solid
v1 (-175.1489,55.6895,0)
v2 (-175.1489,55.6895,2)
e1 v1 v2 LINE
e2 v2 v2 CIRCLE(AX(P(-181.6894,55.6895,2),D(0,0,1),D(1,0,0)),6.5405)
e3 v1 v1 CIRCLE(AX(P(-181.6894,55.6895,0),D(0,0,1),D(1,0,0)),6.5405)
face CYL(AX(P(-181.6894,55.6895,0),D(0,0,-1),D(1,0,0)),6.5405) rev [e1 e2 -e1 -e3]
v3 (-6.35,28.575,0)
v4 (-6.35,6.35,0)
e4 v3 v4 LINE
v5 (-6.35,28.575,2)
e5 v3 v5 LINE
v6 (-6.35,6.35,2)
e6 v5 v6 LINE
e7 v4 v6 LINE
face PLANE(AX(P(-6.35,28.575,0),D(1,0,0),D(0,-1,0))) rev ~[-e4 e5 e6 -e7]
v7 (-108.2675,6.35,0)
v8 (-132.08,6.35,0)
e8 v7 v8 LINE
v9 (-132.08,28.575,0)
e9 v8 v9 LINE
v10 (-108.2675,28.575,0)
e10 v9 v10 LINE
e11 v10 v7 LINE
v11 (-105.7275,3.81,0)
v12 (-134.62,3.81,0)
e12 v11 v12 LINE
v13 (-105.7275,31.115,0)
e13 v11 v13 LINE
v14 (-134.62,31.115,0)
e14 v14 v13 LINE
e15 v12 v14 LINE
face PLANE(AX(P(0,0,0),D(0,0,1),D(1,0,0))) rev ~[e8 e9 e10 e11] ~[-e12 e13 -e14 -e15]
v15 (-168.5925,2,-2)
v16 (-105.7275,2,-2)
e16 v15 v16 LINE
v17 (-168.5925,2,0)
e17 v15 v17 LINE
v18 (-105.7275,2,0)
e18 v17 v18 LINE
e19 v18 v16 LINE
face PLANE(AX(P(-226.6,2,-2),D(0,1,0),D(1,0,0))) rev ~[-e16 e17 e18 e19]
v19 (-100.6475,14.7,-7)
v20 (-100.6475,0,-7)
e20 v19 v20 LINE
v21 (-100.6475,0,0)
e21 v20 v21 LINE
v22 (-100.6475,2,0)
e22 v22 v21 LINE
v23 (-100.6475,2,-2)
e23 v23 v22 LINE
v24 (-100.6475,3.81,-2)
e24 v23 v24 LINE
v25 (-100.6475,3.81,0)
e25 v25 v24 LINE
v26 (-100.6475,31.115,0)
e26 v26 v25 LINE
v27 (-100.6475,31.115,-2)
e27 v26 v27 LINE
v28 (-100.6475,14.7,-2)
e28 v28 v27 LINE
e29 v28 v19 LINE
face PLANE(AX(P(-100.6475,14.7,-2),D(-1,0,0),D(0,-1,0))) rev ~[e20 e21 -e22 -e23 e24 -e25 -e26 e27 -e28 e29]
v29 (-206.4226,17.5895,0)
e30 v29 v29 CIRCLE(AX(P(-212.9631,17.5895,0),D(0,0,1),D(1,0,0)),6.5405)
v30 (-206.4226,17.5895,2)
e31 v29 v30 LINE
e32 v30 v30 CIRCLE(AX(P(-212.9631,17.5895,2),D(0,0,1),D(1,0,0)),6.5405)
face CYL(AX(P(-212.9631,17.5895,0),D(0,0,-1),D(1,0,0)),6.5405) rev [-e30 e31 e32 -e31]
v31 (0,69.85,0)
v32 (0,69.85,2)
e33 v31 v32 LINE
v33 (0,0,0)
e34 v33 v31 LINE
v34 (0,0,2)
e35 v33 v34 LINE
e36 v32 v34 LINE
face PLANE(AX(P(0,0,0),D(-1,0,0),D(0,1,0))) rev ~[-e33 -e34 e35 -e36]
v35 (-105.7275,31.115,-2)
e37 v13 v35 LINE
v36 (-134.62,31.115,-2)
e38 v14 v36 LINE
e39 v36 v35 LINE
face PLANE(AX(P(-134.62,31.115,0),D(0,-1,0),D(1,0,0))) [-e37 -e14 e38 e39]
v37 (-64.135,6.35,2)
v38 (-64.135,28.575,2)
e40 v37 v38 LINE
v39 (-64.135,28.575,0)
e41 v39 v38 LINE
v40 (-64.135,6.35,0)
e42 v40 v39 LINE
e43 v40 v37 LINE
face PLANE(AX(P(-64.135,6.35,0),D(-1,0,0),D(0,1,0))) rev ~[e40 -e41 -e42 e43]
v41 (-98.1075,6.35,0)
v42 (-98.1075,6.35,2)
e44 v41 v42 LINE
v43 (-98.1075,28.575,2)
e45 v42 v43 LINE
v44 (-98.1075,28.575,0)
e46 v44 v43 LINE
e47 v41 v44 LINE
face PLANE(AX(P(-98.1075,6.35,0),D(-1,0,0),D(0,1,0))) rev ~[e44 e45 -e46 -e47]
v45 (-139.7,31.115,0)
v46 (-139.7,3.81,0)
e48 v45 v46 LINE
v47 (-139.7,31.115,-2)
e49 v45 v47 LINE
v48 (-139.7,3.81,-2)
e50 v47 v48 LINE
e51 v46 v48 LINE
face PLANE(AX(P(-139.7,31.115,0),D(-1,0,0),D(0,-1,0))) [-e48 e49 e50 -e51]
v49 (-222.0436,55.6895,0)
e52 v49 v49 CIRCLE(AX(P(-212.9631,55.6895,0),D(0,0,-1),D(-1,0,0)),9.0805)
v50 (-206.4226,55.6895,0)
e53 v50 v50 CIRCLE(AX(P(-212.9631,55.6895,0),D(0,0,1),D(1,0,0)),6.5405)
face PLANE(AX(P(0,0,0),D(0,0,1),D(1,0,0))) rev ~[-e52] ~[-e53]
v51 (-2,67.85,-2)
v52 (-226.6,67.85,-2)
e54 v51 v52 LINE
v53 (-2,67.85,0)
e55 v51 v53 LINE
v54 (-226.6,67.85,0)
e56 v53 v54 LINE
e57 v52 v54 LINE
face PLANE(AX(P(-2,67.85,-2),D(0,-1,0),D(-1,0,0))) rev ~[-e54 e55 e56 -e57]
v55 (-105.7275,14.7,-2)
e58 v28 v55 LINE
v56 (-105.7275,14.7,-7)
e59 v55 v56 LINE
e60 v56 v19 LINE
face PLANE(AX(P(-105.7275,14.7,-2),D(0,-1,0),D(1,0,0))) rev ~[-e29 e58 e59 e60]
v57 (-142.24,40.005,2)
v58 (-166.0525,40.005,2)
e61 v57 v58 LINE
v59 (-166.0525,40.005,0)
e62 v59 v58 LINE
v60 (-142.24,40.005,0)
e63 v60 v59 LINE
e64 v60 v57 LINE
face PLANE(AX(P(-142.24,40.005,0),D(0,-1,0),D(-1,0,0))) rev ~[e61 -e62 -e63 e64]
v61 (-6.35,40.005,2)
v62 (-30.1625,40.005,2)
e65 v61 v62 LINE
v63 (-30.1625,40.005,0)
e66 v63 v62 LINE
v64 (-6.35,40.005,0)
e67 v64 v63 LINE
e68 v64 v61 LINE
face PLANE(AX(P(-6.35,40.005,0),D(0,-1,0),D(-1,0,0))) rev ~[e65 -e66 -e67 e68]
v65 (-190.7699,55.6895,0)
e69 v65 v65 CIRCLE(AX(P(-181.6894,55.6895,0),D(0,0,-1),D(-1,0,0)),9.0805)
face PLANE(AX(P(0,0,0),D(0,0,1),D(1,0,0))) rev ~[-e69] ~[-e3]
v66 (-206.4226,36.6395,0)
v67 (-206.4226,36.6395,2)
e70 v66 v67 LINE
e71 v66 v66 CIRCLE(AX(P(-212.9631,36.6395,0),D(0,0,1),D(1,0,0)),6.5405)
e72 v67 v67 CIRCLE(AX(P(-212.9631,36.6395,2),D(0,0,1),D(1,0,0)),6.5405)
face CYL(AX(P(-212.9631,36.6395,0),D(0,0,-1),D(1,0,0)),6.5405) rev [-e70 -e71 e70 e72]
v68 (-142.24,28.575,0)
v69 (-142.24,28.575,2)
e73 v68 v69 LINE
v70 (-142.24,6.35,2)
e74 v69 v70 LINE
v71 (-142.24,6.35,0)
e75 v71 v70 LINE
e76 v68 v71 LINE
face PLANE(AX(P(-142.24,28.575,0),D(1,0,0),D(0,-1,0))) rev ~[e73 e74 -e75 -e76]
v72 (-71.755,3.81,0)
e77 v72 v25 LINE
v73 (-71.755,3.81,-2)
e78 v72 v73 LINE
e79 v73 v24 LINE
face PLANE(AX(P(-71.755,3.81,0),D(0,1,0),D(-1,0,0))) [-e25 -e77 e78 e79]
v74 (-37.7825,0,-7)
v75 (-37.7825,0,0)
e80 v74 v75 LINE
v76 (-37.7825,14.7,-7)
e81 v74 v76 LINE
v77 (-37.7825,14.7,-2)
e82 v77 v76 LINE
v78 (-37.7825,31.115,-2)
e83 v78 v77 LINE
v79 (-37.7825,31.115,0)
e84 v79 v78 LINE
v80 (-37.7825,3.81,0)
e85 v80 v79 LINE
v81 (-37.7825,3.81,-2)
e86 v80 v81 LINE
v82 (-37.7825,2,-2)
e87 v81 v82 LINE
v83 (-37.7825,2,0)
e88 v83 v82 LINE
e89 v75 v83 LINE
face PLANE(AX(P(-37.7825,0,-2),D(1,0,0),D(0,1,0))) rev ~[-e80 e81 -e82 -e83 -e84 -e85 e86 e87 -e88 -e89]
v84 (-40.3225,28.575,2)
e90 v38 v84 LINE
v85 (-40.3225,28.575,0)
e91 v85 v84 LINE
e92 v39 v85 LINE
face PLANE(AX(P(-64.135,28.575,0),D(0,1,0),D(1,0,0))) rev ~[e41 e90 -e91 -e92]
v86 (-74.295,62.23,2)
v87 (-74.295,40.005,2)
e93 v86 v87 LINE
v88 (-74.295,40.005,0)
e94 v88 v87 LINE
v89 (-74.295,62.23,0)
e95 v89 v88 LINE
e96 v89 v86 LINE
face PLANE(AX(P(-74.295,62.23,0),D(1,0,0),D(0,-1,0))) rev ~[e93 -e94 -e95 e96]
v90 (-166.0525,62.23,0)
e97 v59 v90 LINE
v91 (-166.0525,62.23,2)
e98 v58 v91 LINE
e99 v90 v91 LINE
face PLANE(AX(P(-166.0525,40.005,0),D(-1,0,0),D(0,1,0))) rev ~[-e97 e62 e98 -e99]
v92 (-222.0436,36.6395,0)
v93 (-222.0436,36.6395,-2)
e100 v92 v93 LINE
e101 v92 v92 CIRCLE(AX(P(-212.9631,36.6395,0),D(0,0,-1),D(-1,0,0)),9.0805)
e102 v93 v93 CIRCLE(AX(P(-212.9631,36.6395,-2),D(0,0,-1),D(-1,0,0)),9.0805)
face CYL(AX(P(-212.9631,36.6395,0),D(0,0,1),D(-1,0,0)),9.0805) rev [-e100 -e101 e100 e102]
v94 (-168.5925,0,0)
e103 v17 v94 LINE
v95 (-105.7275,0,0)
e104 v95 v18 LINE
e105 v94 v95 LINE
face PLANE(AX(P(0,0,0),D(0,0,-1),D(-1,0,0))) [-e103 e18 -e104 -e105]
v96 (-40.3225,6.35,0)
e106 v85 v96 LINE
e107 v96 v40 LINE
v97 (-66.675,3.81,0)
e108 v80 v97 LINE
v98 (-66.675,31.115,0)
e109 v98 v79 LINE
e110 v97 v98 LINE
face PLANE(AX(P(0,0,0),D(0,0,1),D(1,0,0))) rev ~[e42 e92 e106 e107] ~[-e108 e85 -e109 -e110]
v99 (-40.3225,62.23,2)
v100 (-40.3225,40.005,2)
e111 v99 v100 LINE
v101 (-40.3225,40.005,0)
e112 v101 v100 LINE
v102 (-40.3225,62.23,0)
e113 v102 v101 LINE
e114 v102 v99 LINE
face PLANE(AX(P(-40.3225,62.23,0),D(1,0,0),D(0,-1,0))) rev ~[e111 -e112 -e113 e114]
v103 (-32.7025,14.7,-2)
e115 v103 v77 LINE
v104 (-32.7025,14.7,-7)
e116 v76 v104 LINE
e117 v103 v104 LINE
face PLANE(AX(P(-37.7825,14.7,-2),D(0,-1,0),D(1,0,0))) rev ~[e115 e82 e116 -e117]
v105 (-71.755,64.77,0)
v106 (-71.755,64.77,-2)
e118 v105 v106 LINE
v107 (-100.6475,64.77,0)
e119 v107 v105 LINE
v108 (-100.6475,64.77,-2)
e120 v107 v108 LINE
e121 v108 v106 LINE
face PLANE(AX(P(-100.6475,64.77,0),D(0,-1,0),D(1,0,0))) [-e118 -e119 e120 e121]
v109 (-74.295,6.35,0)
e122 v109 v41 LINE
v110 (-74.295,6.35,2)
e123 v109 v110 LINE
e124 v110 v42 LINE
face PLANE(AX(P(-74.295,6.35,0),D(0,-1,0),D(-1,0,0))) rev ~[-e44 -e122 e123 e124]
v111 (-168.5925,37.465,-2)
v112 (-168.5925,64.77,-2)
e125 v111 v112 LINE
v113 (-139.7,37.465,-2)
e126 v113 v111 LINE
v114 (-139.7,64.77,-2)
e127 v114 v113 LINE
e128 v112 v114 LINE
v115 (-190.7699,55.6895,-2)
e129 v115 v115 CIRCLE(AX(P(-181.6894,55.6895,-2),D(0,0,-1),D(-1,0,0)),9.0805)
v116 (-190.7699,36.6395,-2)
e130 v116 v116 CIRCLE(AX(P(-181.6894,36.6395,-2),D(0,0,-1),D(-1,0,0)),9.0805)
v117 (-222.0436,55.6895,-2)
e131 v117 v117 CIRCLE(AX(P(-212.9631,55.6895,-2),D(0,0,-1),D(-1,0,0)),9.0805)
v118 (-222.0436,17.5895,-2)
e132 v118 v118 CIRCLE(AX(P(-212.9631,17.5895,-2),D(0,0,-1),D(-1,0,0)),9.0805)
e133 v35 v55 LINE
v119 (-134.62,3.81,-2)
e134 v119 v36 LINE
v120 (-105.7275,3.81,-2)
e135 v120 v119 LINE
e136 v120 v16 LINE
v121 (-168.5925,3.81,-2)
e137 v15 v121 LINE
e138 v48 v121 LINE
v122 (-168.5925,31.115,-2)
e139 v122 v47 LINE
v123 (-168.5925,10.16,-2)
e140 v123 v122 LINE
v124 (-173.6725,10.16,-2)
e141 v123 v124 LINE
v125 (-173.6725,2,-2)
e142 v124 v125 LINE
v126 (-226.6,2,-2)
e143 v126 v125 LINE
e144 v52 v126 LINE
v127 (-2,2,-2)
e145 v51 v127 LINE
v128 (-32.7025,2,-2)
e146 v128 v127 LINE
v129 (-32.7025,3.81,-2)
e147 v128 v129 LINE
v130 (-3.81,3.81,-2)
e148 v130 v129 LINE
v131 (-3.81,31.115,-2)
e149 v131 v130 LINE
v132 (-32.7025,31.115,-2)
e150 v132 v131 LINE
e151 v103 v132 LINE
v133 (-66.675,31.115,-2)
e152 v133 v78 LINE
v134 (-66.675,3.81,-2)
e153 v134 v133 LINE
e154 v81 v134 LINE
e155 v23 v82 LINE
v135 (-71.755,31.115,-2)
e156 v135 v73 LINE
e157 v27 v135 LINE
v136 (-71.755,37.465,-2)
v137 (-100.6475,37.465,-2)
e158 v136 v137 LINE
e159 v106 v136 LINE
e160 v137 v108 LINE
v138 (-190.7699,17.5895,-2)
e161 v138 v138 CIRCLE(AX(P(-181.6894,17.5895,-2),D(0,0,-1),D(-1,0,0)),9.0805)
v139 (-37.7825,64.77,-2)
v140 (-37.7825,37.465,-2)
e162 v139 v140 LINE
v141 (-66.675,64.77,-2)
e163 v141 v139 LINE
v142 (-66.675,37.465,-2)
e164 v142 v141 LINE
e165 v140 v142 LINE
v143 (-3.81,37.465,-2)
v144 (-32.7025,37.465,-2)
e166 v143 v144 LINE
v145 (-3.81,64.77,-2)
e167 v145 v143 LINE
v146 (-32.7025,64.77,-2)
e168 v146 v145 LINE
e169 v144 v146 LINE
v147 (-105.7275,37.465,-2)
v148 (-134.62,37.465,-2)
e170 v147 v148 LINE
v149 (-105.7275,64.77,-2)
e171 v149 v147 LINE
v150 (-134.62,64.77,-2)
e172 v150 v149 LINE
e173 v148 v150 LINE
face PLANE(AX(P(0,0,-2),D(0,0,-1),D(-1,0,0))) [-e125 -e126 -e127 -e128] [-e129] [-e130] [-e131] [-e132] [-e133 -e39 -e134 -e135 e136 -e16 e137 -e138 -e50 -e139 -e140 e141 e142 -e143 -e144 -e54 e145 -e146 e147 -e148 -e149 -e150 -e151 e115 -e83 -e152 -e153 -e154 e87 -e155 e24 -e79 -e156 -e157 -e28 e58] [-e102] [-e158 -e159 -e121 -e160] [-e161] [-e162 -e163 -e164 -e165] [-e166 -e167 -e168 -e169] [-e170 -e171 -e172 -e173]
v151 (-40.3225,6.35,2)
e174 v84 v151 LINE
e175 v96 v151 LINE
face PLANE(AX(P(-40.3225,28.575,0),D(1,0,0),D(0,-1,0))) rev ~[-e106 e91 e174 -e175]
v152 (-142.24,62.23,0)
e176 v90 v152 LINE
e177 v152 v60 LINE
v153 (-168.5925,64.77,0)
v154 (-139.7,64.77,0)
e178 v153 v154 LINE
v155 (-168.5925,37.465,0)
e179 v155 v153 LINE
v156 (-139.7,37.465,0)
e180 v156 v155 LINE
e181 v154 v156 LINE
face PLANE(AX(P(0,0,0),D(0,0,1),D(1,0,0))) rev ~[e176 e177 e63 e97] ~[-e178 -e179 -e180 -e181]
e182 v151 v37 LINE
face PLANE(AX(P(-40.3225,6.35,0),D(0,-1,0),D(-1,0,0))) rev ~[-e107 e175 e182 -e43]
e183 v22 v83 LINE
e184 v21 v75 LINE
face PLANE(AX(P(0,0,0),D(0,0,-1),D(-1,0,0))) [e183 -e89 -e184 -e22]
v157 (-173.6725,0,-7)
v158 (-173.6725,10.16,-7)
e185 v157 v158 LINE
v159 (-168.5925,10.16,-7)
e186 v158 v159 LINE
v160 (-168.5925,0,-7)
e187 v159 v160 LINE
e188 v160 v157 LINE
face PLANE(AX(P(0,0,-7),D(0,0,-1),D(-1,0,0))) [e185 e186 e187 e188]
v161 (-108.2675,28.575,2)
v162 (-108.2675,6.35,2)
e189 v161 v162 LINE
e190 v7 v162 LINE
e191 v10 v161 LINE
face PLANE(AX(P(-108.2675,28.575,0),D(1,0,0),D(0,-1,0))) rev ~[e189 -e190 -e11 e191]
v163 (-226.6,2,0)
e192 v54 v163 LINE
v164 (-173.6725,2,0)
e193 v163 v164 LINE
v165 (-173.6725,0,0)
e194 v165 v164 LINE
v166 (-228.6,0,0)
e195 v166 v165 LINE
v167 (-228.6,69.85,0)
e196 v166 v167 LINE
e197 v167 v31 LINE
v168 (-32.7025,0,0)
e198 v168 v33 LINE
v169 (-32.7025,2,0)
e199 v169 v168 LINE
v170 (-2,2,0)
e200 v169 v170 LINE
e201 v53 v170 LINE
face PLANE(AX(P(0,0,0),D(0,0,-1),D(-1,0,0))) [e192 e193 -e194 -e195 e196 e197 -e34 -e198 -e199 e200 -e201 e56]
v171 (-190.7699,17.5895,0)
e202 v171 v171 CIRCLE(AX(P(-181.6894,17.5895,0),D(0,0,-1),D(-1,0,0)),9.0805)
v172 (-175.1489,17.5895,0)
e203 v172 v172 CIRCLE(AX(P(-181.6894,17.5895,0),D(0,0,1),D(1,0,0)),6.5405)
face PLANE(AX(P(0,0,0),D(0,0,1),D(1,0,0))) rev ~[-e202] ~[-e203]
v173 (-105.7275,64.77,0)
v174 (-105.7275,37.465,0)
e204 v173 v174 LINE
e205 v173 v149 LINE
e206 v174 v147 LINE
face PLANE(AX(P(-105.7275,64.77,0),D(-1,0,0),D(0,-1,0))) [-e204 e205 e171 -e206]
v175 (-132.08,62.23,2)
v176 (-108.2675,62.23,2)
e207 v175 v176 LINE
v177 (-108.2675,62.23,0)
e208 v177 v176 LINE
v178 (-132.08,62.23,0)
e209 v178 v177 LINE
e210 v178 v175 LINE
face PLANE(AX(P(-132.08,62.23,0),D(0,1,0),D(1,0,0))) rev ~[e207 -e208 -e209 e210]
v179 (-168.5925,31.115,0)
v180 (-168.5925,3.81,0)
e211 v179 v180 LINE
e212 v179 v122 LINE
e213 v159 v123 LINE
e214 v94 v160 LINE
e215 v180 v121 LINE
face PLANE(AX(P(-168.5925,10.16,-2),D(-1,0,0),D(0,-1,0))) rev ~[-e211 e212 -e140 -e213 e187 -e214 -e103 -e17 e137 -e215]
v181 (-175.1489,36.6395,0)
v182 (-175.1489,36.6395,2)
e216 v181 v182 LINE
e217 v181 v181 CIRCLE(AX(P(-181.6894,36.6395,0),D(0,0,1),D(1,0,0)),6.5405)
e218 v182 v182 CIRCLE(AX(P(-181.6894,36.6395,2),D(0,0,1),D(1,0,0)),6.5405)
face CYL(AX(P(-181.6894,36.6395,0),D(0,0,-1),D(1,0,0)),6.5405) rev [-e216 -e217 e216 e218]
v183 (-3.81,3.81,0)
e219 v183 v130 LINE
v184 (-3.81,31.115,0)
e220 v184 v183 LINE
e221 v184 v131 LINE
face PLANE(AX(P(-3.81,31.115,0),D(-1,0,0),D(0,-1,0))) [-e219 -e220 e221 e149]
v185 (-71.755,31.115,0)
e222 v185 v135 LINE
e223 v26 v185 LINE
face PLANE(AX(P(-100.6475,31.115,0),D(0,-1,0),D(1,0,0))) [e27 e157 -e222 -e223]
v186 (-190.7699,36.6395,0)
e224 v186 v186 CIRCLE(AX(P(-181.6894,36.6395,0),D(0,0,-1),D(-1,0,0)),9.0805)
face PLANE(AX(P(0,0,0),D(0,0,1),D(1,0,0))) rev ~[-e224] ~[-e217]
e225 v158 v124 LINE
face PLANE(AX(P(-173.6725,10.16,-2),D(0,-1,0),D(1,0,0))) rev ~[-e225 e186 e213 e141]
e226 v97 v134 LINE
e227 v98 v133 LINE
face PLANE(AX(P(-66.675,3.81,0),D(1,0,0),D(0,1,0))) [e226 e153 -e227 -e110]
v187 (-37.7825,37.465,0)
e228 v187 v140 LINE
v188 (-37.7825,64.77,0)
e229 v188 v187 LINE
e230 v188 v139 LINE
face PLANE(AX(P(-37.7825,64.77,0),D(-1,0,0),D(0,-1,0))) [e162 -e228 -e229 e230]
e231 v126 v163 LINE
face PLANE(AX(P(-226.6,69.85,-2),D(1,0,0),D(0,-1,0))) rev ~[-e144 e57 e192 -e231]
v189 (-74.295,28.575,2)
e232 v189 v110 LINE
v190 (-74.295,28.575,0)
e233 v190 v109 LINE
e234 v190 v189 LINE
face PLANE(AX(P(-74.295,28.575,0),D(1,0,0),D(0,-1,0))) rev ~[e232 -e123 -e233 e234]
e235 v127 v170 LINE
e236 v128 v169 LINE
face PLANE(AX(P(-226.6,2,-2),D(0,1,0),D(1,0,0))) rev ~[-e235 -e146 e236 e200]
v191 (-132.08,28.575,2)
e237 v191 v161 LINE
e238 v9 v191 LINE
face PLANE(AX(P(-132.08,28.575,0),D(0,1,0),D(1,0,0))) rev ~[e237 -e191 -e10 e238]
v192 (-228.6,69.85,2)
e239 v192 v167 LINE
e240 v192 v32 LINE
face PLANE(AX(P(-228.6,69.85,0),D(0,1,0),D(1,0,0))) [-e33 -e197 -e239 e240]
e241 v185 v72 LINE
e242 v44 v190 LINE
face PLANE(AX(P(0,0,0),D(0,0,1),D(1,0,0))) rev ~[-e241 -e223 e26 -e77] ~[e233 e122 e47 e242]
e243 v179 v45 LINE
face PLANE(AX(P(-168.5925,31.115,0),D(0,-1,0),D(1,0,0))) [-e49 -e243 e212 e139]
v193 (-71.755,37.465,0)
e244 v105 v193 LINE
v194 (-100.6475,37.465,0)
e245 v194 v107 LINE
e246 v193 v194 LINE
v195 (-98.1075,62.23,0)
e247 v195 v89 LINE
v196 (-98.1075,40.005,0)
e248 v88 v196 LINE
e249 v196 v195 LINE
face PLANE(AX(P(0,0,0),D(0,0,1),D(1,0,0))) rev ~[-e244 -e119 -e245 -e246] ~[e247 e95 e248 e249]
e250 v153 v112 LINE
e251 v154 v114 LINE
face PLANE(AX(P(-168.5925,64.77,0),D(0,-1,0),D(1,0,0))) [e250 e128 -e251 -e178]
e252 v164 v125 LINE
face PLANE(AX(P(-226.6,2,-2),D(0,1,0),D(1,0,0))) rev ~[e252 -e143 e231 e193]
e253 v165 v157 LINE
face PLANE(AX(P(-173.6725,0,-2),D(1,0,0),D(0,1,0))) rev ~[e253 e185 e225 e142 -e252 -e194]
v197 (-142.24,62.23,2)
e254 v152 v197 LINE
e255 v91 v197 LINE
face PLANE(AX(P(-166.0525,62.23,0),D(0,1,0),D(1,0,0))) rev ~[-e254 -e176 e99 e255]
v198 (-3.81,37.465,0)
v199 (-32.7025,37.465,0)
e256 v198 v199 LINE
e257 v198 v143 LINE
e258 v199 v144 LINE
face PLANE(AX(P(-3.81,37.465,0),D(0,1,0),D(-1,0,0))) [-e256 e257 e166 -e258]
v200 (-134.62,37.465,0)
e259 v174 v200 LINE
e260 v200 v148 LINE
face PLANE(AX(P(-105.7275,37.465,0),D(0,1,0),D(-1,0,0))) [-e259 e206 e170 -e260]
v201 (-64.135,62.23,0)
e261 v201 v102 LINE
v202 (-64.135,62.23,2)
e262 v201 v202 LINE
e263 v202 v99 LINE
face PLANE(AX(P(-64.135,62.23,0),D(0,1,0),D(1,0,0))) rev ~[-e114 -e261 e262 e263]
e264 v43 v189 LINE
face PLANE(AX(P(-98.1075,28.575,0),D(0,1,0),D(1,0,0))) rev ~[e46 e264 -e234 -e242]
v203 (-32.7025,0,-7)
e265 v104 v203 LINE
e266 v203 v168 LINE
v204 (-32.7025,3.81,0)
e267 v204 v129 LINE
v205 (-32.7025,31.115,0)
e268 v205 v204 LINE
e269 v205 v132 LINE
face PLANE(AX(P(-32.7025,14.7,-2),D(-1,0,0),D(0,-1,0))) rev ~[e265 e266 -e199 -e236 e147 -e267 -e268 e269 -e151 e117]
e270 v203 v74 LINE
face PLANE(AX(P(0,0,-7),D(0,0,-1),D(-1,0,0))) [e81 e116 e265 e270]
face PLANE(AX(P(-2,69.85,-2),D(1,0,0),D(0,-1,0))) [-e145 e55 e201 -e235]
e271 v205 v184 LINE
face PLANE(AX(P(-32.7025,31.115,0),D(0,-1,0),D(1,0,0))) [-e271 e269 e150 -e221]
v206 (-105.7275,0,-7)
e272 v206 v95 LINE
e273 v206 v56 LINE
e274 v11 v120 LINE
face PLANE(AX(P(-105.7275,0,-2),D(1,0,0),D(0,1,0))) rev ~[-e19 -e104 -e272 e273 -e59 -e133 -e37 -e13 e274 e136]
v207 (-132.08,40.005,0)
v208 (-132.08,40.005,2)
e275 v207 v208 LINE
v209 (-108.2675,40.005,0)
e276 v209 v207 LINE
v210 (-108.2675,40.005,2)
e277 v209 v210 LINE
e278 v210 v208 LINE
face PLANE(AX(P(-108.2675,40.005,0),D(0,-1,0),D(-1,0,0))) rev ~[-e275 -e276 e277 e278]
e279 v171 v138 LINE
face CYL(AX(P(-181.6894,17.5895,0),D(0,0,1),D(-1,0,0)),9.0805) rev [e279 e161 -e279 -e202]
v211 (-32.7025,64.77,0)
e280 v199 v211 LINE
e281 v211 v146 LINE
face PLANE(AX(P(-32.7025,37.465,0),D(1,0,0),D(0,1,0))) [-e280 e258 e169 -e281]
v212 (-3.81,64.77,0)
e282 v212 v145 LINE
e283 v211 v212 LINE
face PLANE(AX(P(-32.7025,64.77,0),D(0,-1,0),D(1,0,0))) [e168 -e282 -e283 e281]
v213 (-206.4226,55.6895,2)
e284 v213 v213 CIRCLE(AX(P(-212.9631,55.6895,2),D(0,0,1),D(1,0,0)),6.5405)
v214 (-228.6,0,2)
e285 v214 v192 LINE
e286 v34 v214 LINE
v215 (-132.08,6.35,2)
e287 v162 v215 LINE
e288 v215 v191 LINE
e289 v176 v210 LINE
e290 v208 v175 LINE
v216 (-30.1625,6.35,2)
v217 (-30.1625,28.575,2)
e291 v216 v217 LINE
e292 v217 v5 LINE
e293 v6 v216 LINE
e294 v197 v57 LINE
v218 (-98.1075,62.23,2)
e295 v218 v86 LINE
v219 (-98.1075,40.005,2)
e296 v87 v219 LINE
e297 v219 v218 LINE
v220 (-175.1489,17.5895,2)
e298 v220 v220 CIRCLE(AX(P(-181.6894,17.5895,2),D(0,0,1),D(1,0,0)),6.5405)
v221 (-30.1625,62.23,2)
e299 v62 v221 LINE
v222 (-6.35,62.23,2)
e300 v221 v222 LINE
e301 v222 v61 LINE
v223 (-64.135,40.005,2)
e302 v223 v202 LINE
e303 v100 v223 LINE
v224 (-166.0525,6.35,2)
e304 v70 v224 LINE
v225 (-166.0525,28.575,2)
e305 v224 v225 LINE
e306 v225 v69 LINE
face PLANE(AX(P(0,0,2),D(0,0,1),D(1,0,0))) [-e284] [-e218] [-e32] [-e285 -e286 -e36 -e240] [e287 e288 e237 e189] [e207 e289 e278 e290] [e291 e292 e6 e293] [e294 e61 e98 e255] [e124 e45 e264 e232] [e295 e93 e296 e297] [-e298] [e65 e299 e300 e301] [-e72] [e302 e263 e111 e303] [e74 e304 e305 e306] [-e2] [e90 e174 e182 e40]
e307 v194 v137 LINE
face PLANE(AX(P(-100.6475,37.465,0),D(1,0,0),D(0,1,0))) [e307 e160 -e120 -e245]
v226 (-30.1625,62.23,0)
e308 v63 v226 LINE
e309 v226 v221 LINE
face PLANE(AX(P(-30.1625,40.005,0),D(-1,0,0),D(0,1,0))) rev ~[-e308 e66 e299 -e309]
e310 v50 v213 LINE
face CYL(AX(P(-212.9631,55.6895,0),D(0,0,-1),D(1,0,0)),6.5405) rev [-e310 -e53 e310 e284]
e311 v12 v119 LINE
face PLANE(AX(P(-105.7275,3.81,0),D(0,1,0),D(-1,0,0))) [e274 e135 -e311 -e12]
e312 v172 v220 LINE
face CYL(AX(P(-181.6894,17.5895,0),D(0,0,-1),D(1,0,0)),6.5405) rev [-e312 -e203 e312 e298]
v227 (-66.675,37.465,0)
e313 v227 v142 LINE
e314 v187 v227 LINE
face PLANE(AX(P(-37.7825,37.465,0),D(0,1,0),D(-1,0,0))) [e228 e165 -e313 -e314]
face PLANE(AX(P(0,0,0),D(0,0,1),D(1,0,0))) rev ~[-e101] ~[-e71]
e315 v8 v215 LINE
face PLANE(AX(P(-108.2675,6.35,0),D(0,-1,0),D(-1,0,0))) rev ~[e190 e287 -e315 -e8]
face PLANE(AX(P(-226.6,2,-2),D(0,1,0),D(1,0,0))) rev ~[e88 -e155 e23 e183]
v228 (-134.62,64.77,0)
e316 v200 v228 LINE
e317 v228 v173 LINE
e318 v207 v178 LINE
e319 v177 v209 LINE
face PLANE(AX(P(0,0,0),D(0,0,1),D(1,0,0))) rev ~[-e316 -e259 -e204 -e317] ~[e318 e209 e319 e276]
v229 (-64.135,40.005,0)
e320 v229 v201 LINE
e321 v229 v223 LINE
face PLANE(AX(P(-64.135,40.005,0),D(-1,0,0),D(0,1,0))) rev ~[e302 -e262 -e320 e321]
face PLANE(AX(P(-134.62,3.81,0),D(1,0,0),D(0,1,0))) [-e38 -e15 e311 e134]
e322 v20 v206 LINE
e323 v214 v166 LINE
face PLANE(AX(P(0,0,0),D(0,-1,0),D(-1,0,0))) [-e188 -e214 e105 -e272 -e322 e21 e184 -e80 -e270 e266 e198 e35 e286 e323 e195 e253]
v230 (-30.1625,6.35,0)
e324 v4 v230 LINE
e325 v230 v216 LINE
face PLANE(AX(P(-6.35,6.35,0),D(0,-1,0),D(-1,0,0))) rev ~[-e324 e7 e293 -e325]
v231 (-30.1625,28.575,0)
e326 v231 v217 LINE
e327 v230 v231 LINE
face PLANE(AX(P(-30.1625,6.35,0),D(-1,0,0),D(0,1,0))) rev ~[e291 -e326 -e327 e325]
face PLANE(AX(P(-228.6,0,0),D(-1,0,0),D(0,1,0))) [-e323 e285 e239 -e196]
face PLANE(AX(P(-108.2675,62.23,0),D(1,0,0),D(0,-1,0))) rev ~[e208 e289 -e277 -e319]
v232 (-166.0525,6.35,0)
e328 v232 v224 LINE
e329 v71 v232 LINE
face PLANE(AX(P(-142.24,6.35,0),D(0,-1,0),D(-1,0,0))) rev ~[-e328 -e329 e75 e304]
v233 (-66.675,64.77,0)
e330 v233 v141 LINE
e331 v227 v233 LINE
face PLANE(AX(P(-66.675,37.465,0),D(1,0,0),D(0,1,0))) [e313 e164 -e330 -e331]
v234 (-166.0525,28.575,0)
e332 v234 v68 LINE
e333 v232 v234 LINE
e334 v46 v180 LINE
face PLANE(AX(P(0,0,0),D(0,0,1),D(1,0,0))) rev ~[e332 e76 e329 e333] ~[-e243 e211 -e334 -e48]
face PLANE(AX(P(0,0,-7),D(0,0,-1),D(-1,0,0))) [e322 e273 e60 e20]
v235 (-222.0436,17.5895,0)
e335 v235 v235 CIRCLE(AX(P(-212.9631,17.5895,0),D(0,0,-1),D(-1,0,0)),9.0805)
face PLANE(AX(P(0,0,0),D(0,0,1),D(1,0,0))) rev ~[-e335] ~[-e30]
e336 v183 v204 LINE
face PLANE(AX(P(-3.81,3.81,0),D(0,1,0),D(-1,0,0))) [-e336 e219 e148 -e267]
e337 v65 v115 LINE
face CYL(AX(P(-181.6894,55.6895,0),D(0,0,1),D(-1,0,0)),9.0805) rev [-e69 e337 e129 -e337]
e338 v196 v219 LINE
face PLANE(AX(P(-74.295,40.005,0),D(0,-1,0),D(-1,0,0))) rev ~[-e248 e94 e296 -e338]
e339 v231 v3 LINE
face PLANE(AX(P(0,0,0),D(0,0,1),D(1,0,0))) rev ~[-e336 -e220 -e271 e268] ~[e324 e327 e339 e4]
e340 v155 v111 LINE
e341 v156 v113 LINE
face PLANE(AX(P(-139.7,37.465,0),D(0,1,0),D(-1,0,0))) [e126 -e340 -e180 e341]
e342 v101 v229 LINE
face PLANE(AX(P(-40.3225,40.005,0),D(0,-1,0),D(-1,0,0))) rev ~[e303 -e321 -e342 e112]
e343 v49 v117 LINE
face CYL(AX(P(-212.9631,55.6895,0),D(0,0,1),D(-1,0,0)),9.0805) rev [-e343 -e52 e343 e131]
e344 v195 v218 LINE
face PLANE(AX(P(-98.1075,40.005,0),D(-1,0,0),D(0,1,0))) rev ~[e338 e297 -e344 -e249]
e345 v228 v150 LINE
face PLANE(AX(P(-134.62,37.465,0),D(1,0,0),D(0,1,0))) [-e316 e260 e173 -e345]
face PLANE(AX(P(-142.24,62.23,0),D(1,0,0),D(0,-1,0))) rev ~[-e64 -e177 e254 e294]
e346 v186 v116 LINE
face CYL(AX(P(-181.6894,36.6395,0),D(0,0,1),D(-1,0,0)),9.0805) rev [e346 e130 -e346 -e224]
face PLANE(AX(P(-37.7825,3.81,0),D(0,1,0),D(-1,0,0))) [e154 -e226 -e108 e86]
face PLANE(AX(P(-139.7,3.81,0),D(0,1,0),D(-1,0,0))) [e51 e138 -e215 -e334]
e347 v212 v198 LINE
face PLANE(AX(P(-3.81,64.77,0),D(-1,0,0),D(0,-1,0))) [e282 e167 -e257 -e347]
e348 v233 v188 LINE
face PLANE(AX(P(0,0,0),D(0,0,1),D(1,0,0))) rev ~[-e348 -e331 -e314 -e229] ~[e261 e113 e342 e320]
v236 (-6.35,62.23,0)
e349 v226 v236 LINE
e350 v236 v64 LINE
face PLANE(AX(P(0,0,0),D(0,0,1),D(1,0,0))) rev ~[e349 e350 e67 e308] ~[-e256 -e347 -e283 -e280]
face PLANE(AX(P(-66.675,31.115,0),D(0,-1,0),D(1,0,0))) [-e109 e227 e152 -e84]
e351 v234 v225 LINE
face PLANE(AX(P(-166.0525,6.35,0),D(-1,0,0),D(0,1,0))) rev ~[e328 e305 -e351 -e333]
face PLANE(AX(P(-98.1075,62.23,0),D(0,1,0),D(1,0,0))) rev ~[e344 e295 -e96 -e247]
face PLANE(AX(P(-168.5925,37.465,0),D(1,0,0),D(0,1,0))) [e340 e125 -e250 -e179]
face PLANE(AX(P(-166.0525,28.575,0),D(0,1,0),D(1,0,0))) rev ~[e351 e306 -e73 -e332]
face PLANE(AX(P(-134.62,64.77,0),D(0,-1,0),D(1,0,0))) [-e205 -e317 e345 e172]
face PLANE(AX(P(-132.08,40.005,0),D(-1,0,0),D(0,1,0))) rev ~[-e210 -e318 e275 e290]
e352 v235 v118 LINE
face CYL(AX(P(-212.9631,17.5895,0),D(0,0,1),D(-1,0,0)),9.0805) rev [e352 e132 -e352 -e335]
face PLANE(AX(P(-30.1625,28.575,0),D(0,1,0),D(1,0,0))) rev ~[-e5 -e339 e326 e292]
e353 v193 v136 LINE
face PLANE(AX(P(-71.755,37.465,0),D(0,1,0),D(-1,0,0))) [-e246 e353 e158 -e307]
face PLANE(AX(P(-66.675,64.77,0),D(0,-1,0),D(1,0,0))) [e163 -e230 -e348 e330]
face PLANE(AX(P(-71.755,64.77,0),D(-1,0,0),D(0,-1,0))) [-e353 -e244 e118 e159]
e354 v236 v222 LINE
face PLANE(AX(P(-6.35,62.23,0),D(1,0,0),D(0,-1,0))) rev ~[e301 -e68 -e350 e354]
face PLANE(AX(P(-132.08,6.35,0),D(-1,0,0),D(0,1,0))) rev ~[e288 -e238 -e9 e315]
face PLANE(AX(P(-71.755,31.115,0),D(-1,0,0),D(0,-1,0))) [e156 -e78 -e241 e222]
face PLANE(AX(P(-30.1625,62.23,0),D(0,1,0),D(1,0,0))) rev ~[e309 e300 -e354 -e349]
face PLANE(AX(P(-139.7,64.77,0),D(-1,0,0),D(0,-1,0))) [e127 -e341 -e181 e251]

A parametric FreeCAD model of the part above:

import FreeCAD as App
import Part
import Sketcher
Q = App.Units.Quantity


def add_polygon(sketch, points):
    """Adds a closed chain of lines whose ends are joined by coincident constraints."""
    first, n = sketch.GeometryCount, len(points)
    for a, b in zip(points, points[1:] + points[:1]):
        sketch.addGeometry(Part.LineSegment(App.Vector(*a, 0), App.Vector(*b, 0)), False)
    for i in range(n):
        sketch.addConstraint(Sketcher.Constraint("Coincident", first + i, 2, first + (i + 1) % n, 1))

doc = App.newDocument("Part")
body = doc.addObject("PartDesign::Body", "Body")

sketch1 = doc.addObject("Sketcher::SketchObject", "Sketch")
body.addObject(sketch1)
sketch1.AttachmentSupport = (doc.XY_Plane, [""])
sketch1.MapMode = "FlatFace"
add_polygon(sketch1, [(-229, 0), (0, 0), (0, 70), (-229, 70)])
sketch1.addGeometry(Part.Circle(App.Vector(-213, 18, 0), App.Vector(0, 0, 1), 7), False)
sketch1.addGeometry(Part.Circle(App.Vector(-182, 18, 0), App.Vector(0, 0, 1), 7), False)
add_polygon(sketch1, [(-142, 29), (-142, 6), (-166, 6), (-166, 29)])
add_polygon(sketch1, [(-108, 29), (-108, 6), (-132, 6), (-132, 29)])
add_polygon(sketch1, [(-74, 29), (-74, 6), (-98, 6), (-98, 29)])
add_polygon(sketch1, [(-40, 29), (-40, 6), (-64, 6), (-64, 29)])
add_polygon(sketch1, [(-6, 29), (-6, 6), (-30, 6), (-30, 29)])
sketch1.addGeometry(Part.Circle(App.Vector(-213, 37, 0), App.Vector(0, 0, 1), 7), False)
sketch1.addGeometry(Part.Circle(App.Vector(-182, 37, 0), App.Vector(0, 0, 1), 7), False)
add_polygon(sketch1, [(-142, 62), (-142, 40), (-166, 40), (-166, 62)])
add_polygon(sketch1, [(-108, 62), (-108, 40), (-132, 40), (-132, 62)])
sketch1.addGeometry(Part.Circle(App.Vector(-213, 56, 0), App.Vector(0, 0, 1), 7), False)
sketch1.addGeometry(Part.Circle(App.Vector(-182, 56, 0), App.Vector(0, 0, 1), 7), False)
add_polygon(sketch1, [(-74, 62), (-74, 40), (-98, 40), (-98, 62)])
add_polygon(sketch1, [(-40, 62), (-40, 40), (-64, 40), (-64, 62)])
add_polygon(sketch1, [(-6, 62), (-6, 40), (-30, 40), (-30, 62)])
sketch1.addConstraint(Sketcher.Constraint("Horizontal", 0))
sketch1.addConstraint(Sketcher.Constraint("Vertical", 1))
sketch1.addConstraint(Sketcher.Constraint("Horizontal", 2))
sketch1.addConstraint(Sketcher.Constraint("Vertical", 3))
sketch1.addConstraint(Sketcher.Constraint("Vertical", 6))
sketch1.addConstraint(Sketcher.Constraint("Horizontal", 7))
sketch1.addConstraint(Sketcher.Constraint("Vertical", 8))
sketch1.addConstraint(Sketcher.Constraint("Horizontal", 9))
sketch1.addConstraint(Sketcher.Constraint("Vertical", 10))
sketch1.addConstraint(Sketcher.Constraint("Horizontal", 11))
sketch1.addConstraint(Sketcher.Constraint("Vertical", 12))
sketch1.addConstraint(Sketcher.Constraint("Horizontal", 13))
sketch1.addConstraint(Sketcher.Constraint("Vertical", 14))
sketch1.addConstraint(Sketcher.Constraint("Horizontal", 15))
sketch1.addConstraint(Sketcher.Constraint("Vertical", 16))
sketch1.addConstraint(Sketcher.Constraint("Horizontal", 17))
sketch1.addConstraint(Sketcher.Constraint("Vertical", 18))
sketch1.addConstraint(Sketcher.Constraint("Horizontal", 19))
sketch1.addConstraint(Sketcher.Constraint("Vertical", 20))
sketch1.addConstraint(Sketcher.Constraint("Horizontal", 21))
sketch1.addConstraint(Sketcher.Constraint("Vertical", 22))
sketch1.addConstraint(Sketcher.Constraint("Horizontal", 23))
sketch1.addConstraint(Sketcher.Constraint("Vertical", 24))
sketch1.addConstraint(Sketcher.Constraint("Horizontal", 25))
sketch1.addConstraint(Sketcher.Constraint("Vertical", 28))
sketch1.addConstraint(Sketcher.Constraint("Horizontal", 29))
sketch1.addConstraint(Sketcher.Constraint("Vertical", 30))
sketch1.addConstraint(Sketcher.Constraint("Horizontal", 31))
sketch1.addConstraint(Sketcher.Constraint("Vertical", 32))
sketch1.addConstraint(Sketcher.Constraint("Horizontal", 33))
sketch1.addConstraint(Sketcher.Constraint("Vertical", 34))
sketch1.addConstraint(Sketcher.Constraint("Horizontal", 35))
sketch1.addConstraint(Sketcher.Constraint("Vertical", 38))
sketch1.addConstraint(Sketcher.Constraint("Horizontal", 39))
sketch1.addConstraint(Sketcher.Constraint("Vertical", 40))
sketch1.addConstraint(Sketcher.Constraint("Horizontal", 41))
sketch1.addConstraint(Sketcher.Constraint("Vertical", 42))
sketch1.addConstraint(Sketcher.Constraint("Horizontal", 43))
sketch1.addConstraint(Sketcher.Constraint("Vertical", 44))
sketch1.addConstraint(Sketcher.Constraint("Horizontal", 45))
sketch1.addConstraint(Sketcher.Constraint("Vertical", 46))
sketch1.addConstraint(Sketcher.Constraint("Horizontal", 47))
sketch1.addConstraint(Sketcher.Constraint("Vertical", 48))
sketch1.addConstraint(Sketcher.Constraint("Horizontal", 49))
sketch1.addConstraint(Sketcher.Constraint("Coincident", 0, 2, -1, 1))
sketch1.addConstraint(Sketcher.Constraint("Equal", 4, 5))
sketch1.addConstraint(Sketcher.Constraint("Equal", 5, 26))
sketch1.addConstraint(Sketcher.Constraint("Equal", 26, 27))
sketch1.addConstraint(Sketcher.Constraint("Equal", 27, 36))
sketch1.addConstraint(Sketcher.Constraint("Equal", 36, 37))
sketch1.addConstraint(Sketcher.Constraint("Horizontal", 4, 3, 5, 3))
sketch1.addConstraint(Sketcher.Constraint("Horizontal", 26, 3, 27, 3))
sketch1.addConstraint(Sketcher.Constraint("Horizontal", 36, 3, 37, 3))
sketch1.addConstraint(Sketcher.Constraint("Horizontal", 7, 2, 10, 2))
sketch1.addConstraint(Sketcher.Constraint("Horizontal", 9, 2, 12, 2))
sketch1.addConstraint(Sketcher.Constraint("Horizontal", 11, 2, 14, 2))
sketch1.addConstraint(Sketcher.Constraint("Horizontal", 13, 2, 16, 2))
sketch1.addConstraint(Sketcher.Constraint("Horizontal", 15, 2, 18, 2))
sketch1.addConstraint(Sketcher.Constraint("Horizontal", 17, 2, 20, 2))
sketch1.addConstraint(Sketcher.Constraint("Horizontal", 19, 2, 22, 2))
sketch1.addConstraint(Sketcher.Constraint("Horizontal", 21, 2, 24, 2))
sketch1.addConstraint(Sketcher.Constraint("Horizontal", 29, 2, 32, 2))
sketch1.addConstraint(Sketcher.Constraint("Horizontal", 31, 2, 34, 2))
sketch1.addConstraint(Sketcher.Constraint("Horizontal", 33, 2, 38, 2))
sketch1.addConstraint(Sketcher.Constraint("Horizontal", 35, 2, 40, 2))
sketch1.addConstraint(Sketcher.Constraint("Horizontal", 39, 2, 42, 2))
sketch1.addConstraint(Sketcher.Constraint("Horizontal", 41, 2, 44, 2))
sketch1.addConstraint(Sketcher.Constraint("Horizontal", 43, 2, 46, 2))
sketch1.addConstraint(Sketcher.Constraint("Horizontal", 45, 2, 48, 2))
sketch1.addConstraint(Sketcher.Constraint("Vertical", 4, 3, 26, 3))
sketch1.addConstraint(Sketcher.Constraint("Vertical", 5, 3, 27, 3))
sketch1.addConstraint(Sketcher.Constraint("Vertical", 26, 3, 36, 3))
sketch1.addConstraint(Sketcher.Constraint("Vertical", 27, 3, 37, 3))
sketch1.addConstraint(Sketcher.Constraint("Vertical", 9, 2, 28, 2))
sketch1.addConstraint(Sketcher.Constraint("Vertical", 8, 2, 29, 2))
sketch1.addConstraint(Sketcher.Constraint("Vertical", 13, 2, 32, 2))
sketch1.addConstraint(Sketcher.Constraint("Vertical", 12, 2, 33, 2))
sketch1.addConstraint(Sketcher.Constraint("Vertical", 17, 2, 38, 2))
sketch1.addConstraint(Sketcher.Constraint("Vertical", 16, 2, 39, 2))
sketch1.addConstraint(Sketcher.Constraint("Vertical", 21, 2, 42, 2))
sketch1.addConstraint(Sketcher.Constraint("Vertical", 20, 2, 43, 2))
sketch1.addConstraint(Sketcher.Constraint("Vertical", 25, 2, 46, 2))
sketch1.addConstraint(Sketcher.Constraint("Vertical", 24, 2, 47, 2))
sketch1.addConstraint(Sketcher.Constraint("Equal", 9, 11))
sketch1.addConstraint(Sketcher.Constraint("Equal", 13, 15))
sketch1.addConstraint(Sketcher.Constraint("Equal", 17, 19))
sketch1.addConstraint(Sketcher.Constraint("Equal", 21, 23))
sketch1.addConstraint(Sketcher.Constraint("Equal", 24, 28))
sketch1.addConstraint(Sketcher.Constraint("DistanceX", 0, 1, 0, 2, Q("9 in")))
sketch1.addConstraint(Sketcher.Constraint("Diameter", 4, Q("0.515 in")))
sketch1.addConstraint(Sketcher.Constraint("DistanceY", 1, 1, 1, 2, Q("2.75 in")))
sketch1.addConstraint(Sketcher.Constraint("DistanceX", 7, 2, 7, 1, Q("0.9375 in")))
sketch1.addConstraint(Sketcher.Constraint("DistanceY", 6, 2, 6, 1, Q("0.875 in")))
sketch1.addConstraint(Sketcher.Constraint("DistanceY", -1, 1, 6, 2, Q("0.25 in")))
sketch1.addConstraint(Sketcher.Constraint("DistanceX", 22, 2, -1, 1, Q("0.25 in")))
sketch1.addConstraint(Sketcher.Constraint("DistanceY", 4, 3, 26, 3, Q("0.75 in")))
sketch1.addConstraint(Sketcher.Constraint("DistanceY", 26, 3, 36, 3, Q("0.75 in")))
sketch1.addConstraint(Sketcher.Constraint("DistanceY", 6, 2, 28, 2, Q("1.325 in")))
sketch1.addConstraint(Sketcher.Constraint("DistanceX", 6, 2, -1, 1, Q("5.6 in")))
sketch1.addConstraint(Sketcher.Constraint("DistanceX", 11, 2, -1, 1, Q("5.2 in")))
sketch1.addConstraint(Sketcher.Constraint("DistanceY", 37, 3, 1, 2, Q("0.5575 in")))
sketch1.addConstraint(Sketcher.Constraint("DistanceX", 10, 2, 14, 2, Q("1.3375 in")))
sketch1.addConstraint(Sketcher.Constraint("DistanceX", 14, 2, 18, 2, Q("1.3375 in")))
sketch1.addConstraint(Sketcher.Constraint("DistanceX", 5, 3, 10, 2, Q("2.8906299 in")))
sketch1.addConstraint(Sketcher.Constraint("DistanceX", 4, 3, -1, 1, 212.963))
pad1 = doc.addObject("PartDesign::Pad", "Pad")
body.addObject(pad1)
pad1.Profile = sketch1
pad1.Length = 2

sketch2 = doc.addObject("Sketcher::SketchObject", "Sketch001")
body.addObject(sketch2)
sketch2.AttachmentSupport = (doc.XY_Plane, [""])
sketch2.MapMode = "FlatFace"
add_polygon(sketch2, [(-229, 0), (-229, 70), (0, 70), (0, 0)])
add_polygon(sketch2, [(-33, 4), (-4, 4), (-4, 31), (-33, 31)])
add_polygon(sketch2, [(-67, 4), (-38, 4), (-38, 31), (-67, 31)])
add_polygon(sketch2, [(-101, 4), (-72, 4), (-72, 31), (-101, 31)])
add_polygon(sketch2, [(-135, 4), (-106, 4), (-106, 31), (-135, 31)])
add_polygon(sketch2, [(-169, 4), (-140, 4), (-140, 31), (-169, 31)])
sketch2.addGeometry(Part.Circle(App.Vector(-182, 18, 0), App.Vector(0, 0, 1), 9), False)
sketch2.addGeometry(Part.Circle(App.Vector(-213, 18, 0), App.Vector(0, 0, 1), 9), False)
add_polygon(sketch2, [(-33, 37), (-4, 37), (-4, 65), (-33, 65)])
add_polygon(sketch2, [(-67, 37), (-38, 37), (-38, 65), (-67, 65)])
add_polygon(sketch2, [(-101, 37), (-72, 37), (-72, 65), (-101, 65)])
add_polygon(sketch2, [(-135, 37), (-106, 37), (-106, 65), (-135, 65)])
add_polygon(sketch2, [(-169, 37), (-140, 37), (-140, 65), (-169, 65)])
sketch2.addGeometry(Part.Circle(App.Vector(-182, 37, 0), App.Vector(0, 0, 1), 9), False)
sketch2.addGeometry(Part.Circle(App.Vector(-213, 37, 0), App.Vector(0, 0, 1), 9), False)
sketch2.addGeometry(Part.Circle(App.Vector(-182, 56, 0), App.Vector(0, 0, 1), 9), False)
sketch2.addGeometry(Part.Circle(App.Vector(-213, 56, 0), App.Vector(0, 0, 1), 9), False)
sketch2.addConstraint(Sketcher.Constraint("Vertical", 0))
sketch2.addConstraint(Sketcher.Constraint("Horizontal", 1))
sketch2.addConstraint(Sketcher.Constraint("Vertical", 2))
sketch2.addConstraint(Sketcher.Constraint("Horizontal", 3))
sketch2.addConstraint(Sketcher.Constraint("Horizontal", 4))
sketch2.addConstraint(Sketcher.Constraint("Vertical", 5))
sketch2.addConstraint(Sketcher.Constraint("Horizontal", 6))
sketch2.addConstraint(Sketcher.Constraint("Vertical", 7))
sketch2.addConstraint(Sketcher.Constraint("Horizontal", 8))
sketch2.addConstraint(Sketcher.Constraint("Vertical", 9))
sketch2.addConstraint(Sketcher.Constraint("Horizontal", 10))
sketch2.addConstraint(Sketcher.Constraint("Vertical", 11))
sketch2.addConstraint(Sketcher.Constraint("Horizontal", 12))
sketch2.addConstraint(Sketcher.Constraint("Vertical", 13))
sketch2.addConstraint(Sketcher.Constraint("Horizontal", 14))
sketch2.addConstraint(Sketcher.Constraint("Vertical", 15))
sketch2.addConstraint(Sketcher.Constraint("Horizontal", 16))
sketch2.addConstraint(Sketcher.Constraint("Vertical", 17))
sketch2.addConstraint(Sketcher.Constraint("Horizontal", 18))
sketch2.addConstraint(Sketcher.Constraint("Vertical", 19))
sketch2.addConstraint(Sketcher.Constraint("Horizontal", 20))
sketch2.addConstraint(Sketcher.Constraint("Vertical", 21))
sketch2.addConstraint(Sketcher.Constraint("Horizontal", 22))
sketch2.addConstraint(Sketcher.Constraint("Vertical", 23))
sketch2.addConstraint(Sketcher.Constraint("Horizontal", 26))
sketch2.addConstraint(Sketcher.Constraint("Vertical", 27))
sketch2.addConstraint(Sketcher.Constraint("Horizontal", 28))
sketch2.addConstraint(Sketcher.Constraint("Vertical", 29))
sketch2.addConstraint(Sketcher.Constraint("Horizontal", 30))
sketch2.addConstraint(Sketcher.Constraint("Vertical", 31))
sketch2.addConstraint(Sketcher.Constraint("Horizontal", 32))
sketch2.addConstraint(Sketcher.Constraint("Vertical", 33))
sketch2.addConstraint(Sketcher.Constraint("Horizontal", 34))
sketch2.addConstraint(Sketcher.Constraint("Vertical", 35))
sketch2.addConstraint(Sketcher.Constraint("Horizontal", 36))
sketch2.addConstraint(Sketcher.Constraint("Vertical", 37))
sketch2.addConstraint(Sketcher.Constraint("Horizontal", 38))
sketch2.addConstraint(Sketcher.Constraint("Vertical", 39))
sketch2.addConstraint(Sketcher.Constraint("Horizontal", 40))
sketch2.addConstraint(Sketcher.Constraint("Vertical", 41))
sketch2.addConstraint(Sketcher.Constraint("Horizontal", 42))
sketch2.addConstraint(Sketcher.Constraint("Vertical", 43))
sketch2.addConstraint(Sketcher.Constraint("Horizontal", 44))
sketch2.addConstraint(Sketcher.Constraint("Vertical", 45))
sketch2.addConstraint(Sketcher.Constraint("Coincident", 2, 2, -1, 1))
sketch2.addConstraint(Sketcher.Constraint("Equal", 24, 25))
sketch2.addConstraint(Sketcher.Constraint("Equal", 25, 46))
sketch2.addConstraint(Sketcher.Constraint("Equal", 46, 47))
sketch2.addConstraint(Sketcher.Constraint("Equal", 47, 48))
sketch2.addConstraint(Sketcher.Constraint("Equal", 48, 49))
sketch2.addConstraint(Sketcher.Constraint("Horizontal", 24, 3, 25, 3))
sketch2.addConstraint(Sketcher.Constraint("Horizontal", 46, 3, 47, 3))
sketch2.addConstraint(Sketcher.Constraint("Horizontal", 48, 3, 49, 3))
sketch2.addConstraint(Sketcher.Constraint("Horizontal", 7, 2, 8, 2))
sketch2.addConstraint(Sketcher.Constraint("Horizontal", 6, 2, 9, 2))
sketch2.addConstraint(Sketcher.Constraint("Horizontal", 11, 2, 12, 2))
sketch2.addConstraint(Sketcher.Constraint("Horizontal", 10, 2, 13, 2))
sketch2.addConstraint(Sketcher.Constraint("Horizontal", 15, 2, 16, 2))
sketch2.addConstraint(Sketcher.Constraint("Horizontal", 14, 2, 17, 2))
sketch2.addConstraint(Sketcher.Constraint("Horizontal", 19, 2, 20, 2))
sketch2.addConstraint(Sketcher.Constraint("Horizontal", 18, 2, 21, 2))
sketch2.addConstraint(Sketcher.Constraint("Horizontal", 29, 2, 30, 2))
sketch2.addConstraint(Sketcher.Constraint("Horizontal", 28, 2, 31, 2))
sketch2.addConstraint(Sketcher.Constraint("Horizontal", 33, 2, 34, 2))
sketch2.addConstraint(Sketcher.Constraint("Horizontal", 32, 2, 35, 2))
sketch2.addConstraint(Sketcher.Constraint("Horizontal", 37, 2, 38, 2))
sketch2.addConstraint(Sketcher.Constraint("Horizontal", 36, 2, 39, 2))
sketch2.addConstraint(Sketcher.Constraint("Horizontal", 41, 2, 42, 2))
sketch2.addConstraint(Sketcher.Constraint("Horizontal", 40, 2, 43, 2))
sketch2.addConstraint(Sketcher.Constraint("Vertical", 24, 3, 46, 3))
sketch2.addConstraint(Sketcher.Constraint("Vertical", 25, 3, 47, 3))
sketch2.addConstraint(Sketcher.Constraint("Vertical", 46, 3, 48, 3))
sketch2.addConstraint(Sketcher.Constraint("Vertical", 47, 3, 49, 3))
sketch2.addConstraint(Sketcher.Constraint("Vertical", 5, 2, 26, 2))
sketch2.addConstraint(Sketcher.Constraint("Vertical", 7, 2, 28, 2))
sketch2.addConstraint(Sketcher.Constraint("Vertical", 9, 2, 30, 2))
sketch2.addConstraint(Sketcher.Constraint("Vertical", 11, 2, 32, 2))
sketch2.addConstraint(Sketcher.Constraint("Vertical", 13, 2, 34, 2))
sketch2.addConstraint(Sketcher.Constraint("Vertical", 15, 2, 36, 2))
sketch2.addConstraint(Sketcher.Constraint("Vertical", 17, 2, 38, 2))
sketch2.addConstraint(Sketcher.Constraint("Vertical", 19, 2, 40, 2))
sketch2.addConstraint(Sketcher.Constraint("Vertical", 21, 2, 42, 2))
sketch2.addConstraint(Sketcher.Constraint("Vertical", 23, 2, 44, 2))
sketch2.addConstraint(Sketcher.Constraint("Equal", 6, 8))
sketch2.addConstraint(Sketcher.Constraint("Equal", 10, 12))
sketch2.addConstraint(Sketcher.Constraint("Equal", 14, 16))
sketch2.addConstraint(Sketcher.Constraint("Equal", 18, 20))
sketch2.addConstraint(Sketcher.Constraint("Equal", 23, 27))
sketch2.addConstraint(Sketcher.Constraint("DistanceX", 1, 1, 1, 2, Q("9 in")))
sketch2.addConstraint(Sketcher.Constraint("Diameter", 24, Q("0.715 in")))
sketch2.addConstraint(Sketcher.Constraint("DistanceY", 0, 1, 0, 2, Q("2.75 in")))
sketch2.addConstraint(Sketcher.Constraint("DistanceX", 18, 2, -1, 1, Q("5.3 in")))
sketch2.addConstraint(Sketcher.Constraint("DistanceX", 20, 2, -1, 1, Q("5.5 in")))
sketch2.addConstraint(Sketcher.Constraint("DistanceY", 24, 3, 48, 3, Q("1.5 in")))
sketch2.addConstraint(Sketcher.Constraint("DistanceY", 4, 2, 1, 2, Q("2.6 in")))
sketch2.addConstraint(Sketcher.Constraint("DistanceX", 8, 2, 7, 2, Q("0.2 in")))
sketch2.addConstraint(Sketcher.Constraint("DistanceX", 12, 2, 11, 2, Q("0.2 in")))
sketch2.addConstraint(Sketcher.Constraint("DistanceX", 16, 2, 15, 2, Q("0.2 in")))
sketch2.addConstraint(Sketcher.Constraint("DistanceY", 27, 2, 1, 2, Q("0.2 in")))
sketch2.addConstraint(Sketcher.Constraint("DistanceY", 5, 1, 5, 2, Q("1.075 in")))
sketch2.addConstraint(Sketcher.Constraint("DistanceX", 4, 2, -1, 1, Q("0.15 in")))
sketch2.addConstraint(Sketcher.Constraint("DistanceY", 24, 3, 46, 3, Q("0.75 in")))
sketch2.addConstraint(Sketcher.Constraint("DistanceX", 46, 3, 22, 2, Q("0.5156299 in")))
sketch2.addConstraint(Sketcher.Constraint("DistanceY", -1, 1, 24, 3, Q("0.6925 in")))
sketch2.addConstraint(Sketcher.Constraint("DistanceX", 25, 3, -1, 1, 212.963))
pad2 = doc.addObject("PartDesign::Pad", "Pad001")
body.addObject(pad2)
pad2.Profile = sketch2
pad2.Length = 2
pad2.Reversed = True

sketch3 = doc.addObject("Sketcher::SketchObject", "Sketch002")
body.addObject(sketch3)
sketch3.AttachmentSupport = (doc.XY_Plane, [""])
sketch3.MapMode = "FlatFace"
sketch3.AttachmentOffset = App.Placement(App.Vector(0, 0, -2), App.Rotation())
add_polygon(sketch3, [(-2, 69.8), (0, 69.8), (0, 0), (-2, 0)])
add_polygon(sketch3, [(-228.6, 0), (-228.6, 69.8), (-226.6, 69.8), (-226.6, 0)])
sketch3.addConstraint(Sketcher.Constraint("Horizontal", 0))
sketch3.addConstraint(Sketcher.Constraint("Vertical", 1))
sketch3.addConstraint(Sketcher.Constraint("Horizontal", 2))
sketch3.addConstraint(Sketcher.Constraint("Vertical", 3))
sketch3.addConstraint(Sketcher.Constraint("Vertical", 4))
sketch3.addConstraint(Sketcher.Constraint("Horizontal", 5))
sketch3.addConstraint(Sketcher.Constraint("Vertical", 6))
sketch3.addConstraint(Sketcher.Constraint("Horizontal", 7))
sketch3.addConstraint(Sketcher.Constraint("Coincident", 1, 2, -1, 1))
sketch3.addConstraint(Sketcher.Constraint("PointOnObject", 6, 2, -1))
sketch3.addConstraint(Sketcher.Constraint("Horizontal", 3, 2, 4, 2))
sketch3.addConstraint(Sketcher.Constraint("Equal", 2, 5))
sketch3.addConstraint(Sketcher.Constraint("DistanceX", 4, 2, -1, 1, Q("9 in")))
sketch3.addConstraint(Sketcher.Constraint("DistanceX", 0, 1, 0, 2, 2.0))
sketch3.addConstraint(Sketcher.Constraint("DistanceY", 1, 2, 1, 1, Q("2.75 in")))
pocket1 = doc.addObject("PartDesign::Pocket", "Pocket")
body.addObject(pocket1)
pocket1.Profile = sketch3
pocket1.Length = 2
pocket1.Reversed = True

sketch4 = doc.addObject("Sketcher::SketchObject", "Sketch003")
body.addObject(sketch4)
sketch4.AttachmentSupport = (doc.XY_Plane, [""])
sketch4.MapMode = "FlatFace"
sketch4.AttachmentOffset = App.Placement(App.Vector(0, 0, -2), App.Rotation())
add_polygon(sketch4, [(-2, 2), (-2, 0), (-226.6, 0), (-226.6, 2)])
add_polygon(sketch4, [(-2, 67.8), (-226.6, 67.8), (-226.6, 69.8), (-2, 69.8)])
sketch4.addConstraint(Sketcher.Constraint("Vertical", 0))
sketch4.addConstraint(Sketcher.Constraint("Horizontal", 1))
sketch4.addConstraint(Sketcher.Constraint("Vertical", 2))
sketch4.addConstraint(Sketcher.Constraint("Horizontal", 3))
sketch4.addConstraint(Sketcher.Constraint("Horizontal", 4))
sketch4.addConstraint(Sketcher.Constraint("Vertical", 5))
sketch4.addConstraint(Sketcher.Constraint("Horizontal", 6))
sketch4.addConstraint(Sketcher.Constraint("Vertical", 7))
sketch4.addConstraint(Sketcher.Constraint("PointOnObject", 0, 2, -1))
sketch4.addConstraint(Sketcher.Constraint("Vertical", 2, 2, 4, 2))
sketch4.addConstraint(Sketcher.Constraint("Vertical", 3, 2, 6, 2))
sketch4.addConstraint(Sketcher.Constraint("Equal", 2, 5))
sketch4.addConstraint(Sketcher.Constraint("DistanceY", 0, 2, 0, 1, 2.0))
sketch4.addConstraint(Sketcher.Constraint("DistanceX", 0, 2, -1, 1, 2.0))
sketch4.addConstraint(Sketcher.Constraint("DistanceY", -1, 1, 5, 2, Q("2.75 in")))
sketch4.addConstraint(Sketcher.Constraint("DistanceX", 1, 2, 1, 1, 224.6))
pocket2 = doc.addObject("PartDesign::Pocket", "Pocket001")
body.addObject(pocket2)
pocket2.Profile = sketch4
pocket2.Length = 2
pocket2.Reversed = True

sketch5 = doc.addObject("Sketcher::SketchObject", "Sketch004")
body.addObject(sketch5)
sketch5.AttachmentSupport = (doc.XY_Plane, [""])
sketch5.MapMode = "FlatFace"
sketch5.AttachmentOffset = App.Placement(App.Vector(0, 0, -2), App.Rotation())
add_polygon(sketch5, [(-38, 0), (-38, 15), (-33, 15), (-33, 0)])
add_polygon(sketch5, [(-106, 0), (-106, 15), (-101, 15), (-101, 0)])
add_polygon(sketch5, [(-169, 10), (-169, 0), (-174, 0), (-174, 10)])
sketch5.addConstraint(Sketcher.Constraint("Vertical", 0))
sketch5.addConstraint(Sketcher.Constraint("Horizontal", 1))
sketch5.addConstraint(Sketcher.Constraint("Vertical", 2))
sketch5.addConstraint(Sketcher.Constraint("Horizontal", 3))
sketch5.addConstraint(Sketcher.Constraint("Vertical", 4))
sketch5.addConstraint(Sketcher.Constraint("Horizontal", 5))
sketch5.addConstraint(Sketcher.Constraint("Vertical", 6))
sketch5.addConstraint(Sketcher.Constraint("Horizontal", 7))
sketch5.addConstraint(Sketcher.Constraint("Vertical", 8))
sketch5.addConstraint(Sketcher.Constraint("Horizontal", 9))
sketch5.addConstraint(Sketcher.Constraint("Vertical", 10))
sketch5.addConstraint(Sketcher.Constraint("Horizontal", 11))
sketch5.addConstraint(Sketcher.Constraint("PointOnObject", 2, 2, -1))
sketch5.addConstraint(Sketcher.Constraint("PointOnObject", 6, 2, -1))
sketch5.addConstraint(Sketcher.Constraint("PointOnObject", 8, 2, -1))
sketch5.addConstraint(Sketcher.Constraint("Horizontal", 1, 2, 4, 2))
sketch5.addConstraint(Sketcher.Constraint("Equal", 3, 5))
sketch5.addConstraint(Sketcher.Constraint("Equal", 7, 9))
sketch5.addConstraint(Sketcher.Constraint("DistanceX", 1, 1, 1, 2, Q("0.2 in")))
sketch5.addConstraint(Sketcher.Constraint("DistanceY", 8, 2, 8, 1, Q("0.4 in")))
sketch5.addConstraint(Sketcher.Constraint("DistanceX", 8, 2, 3, 2, Q("5.15 in")))
sketch5.addConstraint(Sketcher.Constraint("DistanceX", 4, 2, 0, 2, Q("2.675 in")))
sketch5.addConstraint(Sketcher.Constraint("DistanceY", 0, 1, 0, 2, 14.7))
sketch5.addConstraint(Sketcher.Constraint("DistanceX", 0, 2, -1, 1, Q("1.4875 in")))
pad3 = doc.addObject("PartDesign::Pad", "Pad002")
body.addObject(pad3)
pad3.Profile = sketch5
pad3.Type = "TwoLengths"
pad3.Length = 5
pad3.Length2 = 2
pad3.Reversed = True

doc.recompute()
